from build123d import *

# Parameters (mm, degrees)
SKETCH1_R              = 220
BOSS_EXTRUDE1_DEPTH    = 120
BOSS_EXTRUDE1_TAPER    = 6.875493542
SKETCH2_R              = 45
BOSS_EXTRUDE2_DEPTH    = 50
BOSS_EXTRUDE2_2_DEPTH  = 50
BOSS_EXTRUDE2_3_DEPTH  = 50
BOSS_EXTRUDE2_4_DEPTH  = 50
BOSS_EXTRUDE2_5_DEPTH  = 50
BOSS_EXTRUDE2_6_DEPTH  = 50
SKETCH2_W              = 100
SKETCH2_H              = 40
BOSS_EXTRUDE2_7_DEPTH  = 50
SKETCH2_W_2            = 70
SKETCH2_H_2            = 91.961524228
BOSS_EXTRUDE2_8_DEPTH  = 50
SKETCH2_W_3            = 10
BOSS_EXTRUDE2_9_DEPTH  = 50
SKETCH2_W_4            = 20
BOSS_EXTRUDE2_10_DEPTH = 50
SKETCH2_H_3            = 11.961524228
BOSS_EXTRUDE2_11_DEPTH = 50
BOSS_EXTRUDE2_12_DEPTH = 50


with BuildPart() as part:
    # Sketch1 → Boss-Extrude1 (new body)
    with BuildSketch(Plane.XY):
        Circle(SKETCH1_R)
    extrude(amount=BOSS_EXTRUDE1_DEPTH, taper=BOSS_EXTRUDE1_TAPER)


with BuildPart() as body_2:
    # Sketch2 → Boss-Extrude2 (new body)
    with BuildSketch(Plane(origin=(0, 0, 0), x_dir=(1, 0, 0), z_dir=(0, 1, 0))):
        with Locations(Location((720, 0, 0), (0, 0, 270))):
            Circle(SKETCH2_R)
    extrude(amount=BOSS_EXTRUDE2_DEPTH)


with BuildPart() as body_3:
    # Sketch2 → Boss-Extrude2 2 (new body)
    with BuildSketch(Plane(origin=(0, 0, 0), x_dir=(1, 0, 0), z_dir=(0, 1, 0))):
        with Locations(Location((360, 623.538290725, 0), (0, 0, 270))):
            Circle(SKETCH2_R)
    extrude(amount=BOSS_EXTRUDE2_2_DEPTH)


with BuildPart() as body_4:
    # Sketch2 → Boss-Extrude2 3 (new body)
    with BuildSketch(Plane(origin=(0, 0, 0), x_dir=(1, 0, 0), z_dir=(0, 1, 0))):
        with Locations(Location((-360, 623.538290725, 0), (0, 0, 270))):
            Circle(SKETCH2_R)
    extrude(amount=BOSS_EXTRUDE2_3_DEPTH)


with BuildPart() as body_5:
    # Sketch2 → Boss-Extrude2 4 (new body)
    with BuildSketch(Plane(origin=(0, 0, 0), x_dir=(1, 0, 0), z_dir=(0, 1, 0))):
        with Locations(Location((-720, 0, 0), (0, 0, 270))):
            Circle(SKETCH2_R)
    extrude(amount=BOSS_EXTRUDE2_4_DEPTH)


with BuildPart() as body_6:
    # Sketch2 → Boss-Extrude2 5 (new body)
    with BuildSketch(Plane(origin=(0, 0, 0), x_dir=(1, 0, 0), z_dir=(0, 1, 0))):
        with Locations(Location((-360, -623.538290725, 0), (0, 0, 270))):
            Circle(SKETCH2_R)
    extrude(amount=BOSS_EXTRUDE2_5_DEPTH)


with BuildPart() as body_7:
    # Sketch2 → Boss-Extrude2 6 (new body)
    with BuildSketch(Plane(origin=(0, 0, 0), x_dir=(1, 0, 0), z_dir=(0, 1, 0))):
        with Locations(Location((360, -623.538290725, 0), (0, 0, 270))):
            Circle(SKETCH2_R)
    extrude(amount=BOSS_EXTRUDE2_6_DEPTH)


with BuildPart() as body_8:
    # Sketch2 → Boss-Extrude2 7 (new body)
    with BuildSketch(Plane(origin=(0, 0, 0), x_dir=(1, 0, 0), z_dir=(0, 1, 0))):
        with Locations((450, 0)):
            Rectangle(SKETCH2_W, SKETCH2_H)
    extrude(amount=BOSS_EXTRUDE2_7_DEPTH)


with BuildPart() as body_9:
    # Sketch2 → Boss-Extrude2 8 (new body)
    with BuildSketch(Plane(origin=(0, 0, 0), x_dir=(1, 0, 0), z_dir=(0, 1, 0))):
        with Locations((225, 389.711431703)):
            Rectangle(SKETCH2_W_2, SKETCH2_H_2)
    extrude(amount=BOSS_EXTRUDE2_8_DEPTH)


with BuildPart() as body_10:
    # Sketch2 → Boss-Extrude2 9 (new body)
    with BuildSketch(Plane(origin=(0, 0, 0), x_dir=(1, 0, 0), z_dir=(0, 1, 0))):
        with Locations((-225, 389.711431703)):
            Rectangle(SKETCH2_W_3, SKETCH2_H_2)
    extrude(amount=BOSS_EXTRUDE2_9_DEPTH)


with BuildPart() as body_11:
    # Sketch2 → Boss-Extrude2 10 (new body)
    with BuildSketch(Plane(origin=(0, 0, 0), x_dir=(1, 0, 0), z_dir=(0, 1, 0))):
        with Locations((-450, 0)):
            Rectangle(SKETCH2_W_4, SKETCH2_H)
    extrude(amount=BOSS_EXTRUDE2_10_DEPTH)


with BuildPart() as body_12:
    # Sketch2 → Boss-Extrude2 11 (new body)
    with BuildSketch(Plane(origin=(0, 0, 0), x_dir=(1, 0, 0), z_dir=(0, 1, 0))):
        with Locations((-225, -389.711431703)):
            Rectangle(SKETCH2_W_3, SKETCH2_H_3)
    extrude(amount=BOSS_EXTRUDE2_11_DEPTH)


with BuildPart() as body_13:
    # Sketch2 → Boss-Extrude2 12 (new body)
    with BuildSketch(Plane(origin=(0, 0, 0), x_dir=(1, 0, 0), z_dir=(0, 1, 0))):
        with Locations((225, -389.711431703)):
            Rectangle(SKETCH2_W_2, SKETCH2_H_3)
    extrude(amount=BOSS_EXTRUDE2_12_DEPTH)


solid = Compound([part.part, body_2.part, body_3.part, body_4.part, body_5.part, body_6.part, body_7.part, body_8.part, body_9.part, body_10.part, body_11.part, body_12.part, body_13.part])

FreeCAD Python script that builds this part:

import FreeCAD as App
import Part
import Sketcher


def add_polygon(sketch, points):
    """Adds a closed chain of lines whose ends are joined by coincident constraints."""
    first, n = sketch.GeometryCount, len(points)
    for a, b in zip(points, points[1:] + points[:1]):
        sketch.addGeometry(Part.LineSegment(App.Vector(*a, 0), App.Vector(*b, 0)), False)
    for i in range(n):
        sketch.addConstraint(Sketcher.Constraint("Coincident", first + i, 2, first + (i + 1) % n, 1))

doc = App.newDocument("Part")
body = doc.addObject("PartDesign::Body", "Body")

# Sketch on XY plane
sketch1 = body.newObject("Sketcher::SketchObject", "Sketch")
sketch1.AttachmentSupport = (doc.getObject("XY_Plane"), [""])
sketch1.MapMode = "FlatFace"
sketch1.addGeometry(Part.Circle(App.Vector(0, 0, 0), App.Vector(0, 0, 1), 220), False)
sketch1.addConstraint(Sketcher.Constraint("Coincident", 0, 3, -1, 1))
sketch1.addConstraint(Sketcher.Constraint("Diameter", 0, 440.0))
pad1 = body.newObject("PartDesign::Pad", "Pad")
pad1.Profile = sketch1
pad1.Length = 120
pad1.TaperAngle = -6.875494
body2 = doc.addObject("PartDesign::Body", "Body001")

# Sketch on XZ plane
sketch2 = body2.newObject("Sketcher::SketchObject", "Sketch001")
sketch2.AttachmentSupport = (doc.getObject("XZ_Plane001"), [""])
sketch2.MapMode = "FlatFace"
sketch2.addGeometry(Part.Circle(App.Vector(720, 0, 0), App.Vector(0, 0, 1), 45), False)
sketch2.addConstraint(Sketcher.Constraint("PointOnObject", 0, 3, -1))
sketch2.addConstraint(Sketcher.Constraint("Diameter", 0, 90.0))
sketch2.addConstraint(Sketcher.Constraint("DistanceX", -1, 1, 0, 3, 720.0))
pad2 = body2.newObject("PartDesign::Pad", "Pad001")
pad2.Profile = sketch2
pad2.Length = 50
pad2.Reversed = True
body3 = doc.addObject("PartDesign::Body", "Body002")

# Sketch on XZ plane
sketch3 = body3.newObject("Sketcher::SketchObject", "Sketch002")
sketch3.AttachmentSupport = (doc.getObject("XZ_Plane002"), [""])
sketch3.MapMode = "FlatFace"
sketch3.addGeometry(Part.Circle(App.Vector(360, -623.538291, 0), App.Vector(0, 0, 1), 45), False)
sketch3.addConstraint(Sketcher.Constraint("Diameter", 0, 90.0))
sketch3.addConstraint(Sketcher.Constraint("DistanceX", -1, 1, 0, 3, 360.0))
sketch3.addConstraint(Sketcher.Constraint("DistanceY", 0, 3, -1, 1, 623.538291))
pad3 = body3.newObject("PartDesign::Pad", "Pad002")
pad3.Profile = sketch3
pad3.Length = 50
pad3.Reversed = True
body4 = doc.addObject("PartDesign::Body", "Body003")

# Sketch on XZ plane
sketch4 = body4.newObject("Sketcher::SketchObject", "Sketch003")
sketch4.AttachmentSupport = (doc.getObject("XZ_Plane003"), [""])
sketch4.MapMode = "FlatFace"
sketch4.addGeometry(Part.Circle(App.Vector(-360, -623.538291, 0), App.Vector(0, 0, 1), 45), False)
sketch4.addConstraint(Sketcher.Constraint("Diameter", 0, 90.0))
sketch4.addConstraint(Sketcher.Constraint("DistanceX", 0, 3, -1, 1, 360.0))
sketch4.addConstraint(Sketcher.Constraint("DistanceY", 0, 3, -1, 1, 623.538291))
pad4 = body4.newObject("PartDesign::Pad", "Pad003")
pad4.Profile = sketch4
pad4.Length = 50
pad4.Reversed = True
body5 = doc.addObject("PartDesign::Body", "Body004")

# Sketch on XZ plane
sketch5 = body5.newObject("Sketcher::SketchObject", "Sketch004")
sketch5.AttachmentSupport = (doc.getObject("XZ_Plane004"), [""])
sketch5.MapMode = "FlatFace"
sketch5.addGeometry(Part.Circle(App.Vector(-720, 0, 0), App.Vector(0, 0, 1), 45), False)
sketch5.addConstraint(Sketcher.Constraint("PointOnObject", 0, 3, -1))
sketch5.addConstraint(Sketcher.Constraint("Diameter", 0, 90.0))
sketch5.addConstraint(Sketcher.Constraint("DistanceX", 0, 3, -1, 1, 720.0))
pad5 = body5.newObject("PartDesign::Pad", "Pad004")
pad5.Profile = sketch5
pad5.Length = 50
pad5.Reversed = True
body6 = doc.addObject("PartDesign::Body", "Body005")

# Sketch on XZ plane
sketch6 = body6.newObject("Sketcher::SketchObject", "Sketch005")
sketch6.AttachmentSupport = (doc.getObject("XZ_Plane005"), [""])
sketch6.MapMode = "FlatFace"
sketch6.addGeometry(Part.Circle(App.Vector(-360, 623.538291, 0), App.Vector(0, 0, 1), 45), False)
sketch6.addConstraint(Sketcher.Constraint("Diameter", 0, 90.0))
sketch6.addConstraint(Sketcher.Constraint("DistanceX", 0, 3, -1, 1, 360.0))
sketch6.addConstraint(Sketcher.Constraint("DistanceY", -1, 1, 0, 3, 623.538291))
pad6 = body6.newObject("PartDesign::Pad", "Pad005")
pad6.Profile = sketch6
pad6.Length = 50
pad6.Reversed = True
body7 = doc.addObject("PartDesign::Body", "Body006")

# Sketch on XZ plane
sketch7 = body7.newObject("Sketcher::SketchObject", "Sketch006")
sketch7.AttachmentSupport = (doc.getObject("XZ_Plane006"), [""])
sketch7.MapMode = "FlatFace"
sketch7.addGeometry(Part.Circle(App.Vector(360, 623.538291, 0), App.Vector(0, 0, 1), 45), False)
sketch7.addConstraint(Sketcher.Constraint("Diameter", 0, 90.0))
sketch7.addConstraint(Sketcher.Constraint("DistanceX", -1, 1, 0, 3, 360.0))
sketch7.addConstraint(Sketcher.Constraint("DistanceY", -1, 1, 0, 3, 623.538291))
pad7 = body7.newObject("PartDesign::Pad", "Pad006")
pad7.Profile = sketch7
pad7.Length = 50
pad7.Reversed = True
body8 = doc.addObject("PartDesign::Body", "Body007")

# Sketch on XZ plane
sketch8 = body8.newObject("Sketcher::SketchObject", "Sketch007")
sketch8.AttachmentSupport = (doc.getObject("XZ_Plane007"), [""])
sketch8.MapMode = "FlatFace"
add_polygon(sketch8, [(400, -20), (400, 20), (500, 20), (500, -20)])  # lines 0-3
sketch8.addConstraint(Sketcher.Constraint("Vertical", 0))
sketch8.addConstraint(Sketcher.Constraint("Horizontal", 1))
sketch8.addConstraint(Sketcher.Constraint("Vertical", 2))
sketch8.addConstraint(Sketcher.Constraint("Horizontal", 3))
sketch8.addConstraint(Sketcher.Constraint("DistanceX", 1, 1, 1, 2, 100.0))
sketch8.addConstraint(Sketcher.Constraint("DistanceY", 0, 1, 0, 2, 40.0))
sketch8.addConstraint(Sketcher.Constraint("DistanceX", -1, 1, 0, 2, 400.0))
sketch8.addConstraint(Sketcher.Constraint("DistanceY", -1, 1, 0, 2, 20.0))
pad8 = body8.newObject("PartDesign::Pad", "Pad007")
pad8.Profile = sketch8
pad8.Length = 50
pad8.Reversed = True
body9 = doc.addObject("PartDesign::Body", "Body008")

# Sketch on XZ plane
sketch9 = body9.newObject("Sketcher::SketchObject", "Sketch008")
sketch9.AttachmentSupport = (doc.getObject("XZ_Plane008"), [""])
sketch9.MapMode = "FlatFace"
add_polygon(sketch9, [(190, -435.692194), (190, -343.73067), (260, -343.73067), (260, -435.692194)])  # lines 0-3
sketch9.addConstraint(Sketcher.Constraint("Vertical", 0))
sketch9.addConstraint(Sketcher.Constraint("Horizontal", 1))
sketch9.addConstraint(Sketcher.Constraint("Vertical", 2))
sketch9.addConstraint(Sketcher.Constraint("Horizontal", 3))
sketch9.addConstraint(Sketcher.Constraint("DistanceX", 1, 1, 1, 2, 70.0))
sketch9.addConstraint(Sketcher.Constraint("DistanceX", -1, 1, 0, 2, 190.0))
sketch9.addConstraint(Sketcher.Constraint("DistanceY", 0, 1, 0, 2, 91.961524))
sketch9.addConstraint(Sketcher.Constraint("DistanceY", 0, 2, -1, 1, 343.73067))
pad9 = body9.newObject("PartDesign::Pad", "Pad008")
pad9.Profile = sketch9
pad9.Length = 50
pad9.Reversed = True
body10 = doc.addObject("PartDesign::Body", "Body009")

# Sketch on XZ plane
sketch10 = body10.newObject("Sketcher::SketchObject", "Sketch009")
sketch10.AttachmentSupport = (doc.getObject("XZ_Plane009"), [""])
sketch10.MapMode = "FlatFace"
add_polygon(sketch10, [(-230, -435.692194), (-230, -343.73067), (-220, -343.73067), (-220, -435.692194)])  # lines 0-3
sketch10.addConstraint(Sketcher.Constraint("Vertical", 0))
sketch10.addConstraint(Sketcher.Constraint("Horizontal", 1))
sketch10.addConstraint(Sketcher.Constraint("Vertical", 2))
sketch10.addConstraint(Sketcher.Constraint("Horizontal", 3))
sketch10.addConstraint(Sketcher.Constraint("DistanceX", 1, 1, 1, 2, 10.0))
sketch10.addConstraint(Sketcher.Constraint("DistanceX", 0, 2, -1, 1, 230.0))
sketch10.addConstraint(Sketcher.Constraint("DistanceY", 0, 1, 0, 2, 91.961524))
sketch10.addConstraint(Sketcher.Constraint("DistanceY", 0, 2, -1, 1, 343.73067))
pad10 = body10.newObject("PartDesign::Pad", "Pad009")
pad10.Profile = sketch10
pad10.Length = 50
pad10.Reversed = True
body11 = doc.addObject("PartDesign::Body", "Body010")

# Sketch on XZ plane
sketch11 = body11.newObject("Sketcher::SketchObject", "Sketch010")
sketch11.AttachmentSupport = (doc.getObject("XZ_Plane010"), [""])
sketch11.MapMode = "FlatFace"
add_polygon(sketch11, [(-460, -20), (-460, 20), (-440, 20), (-440, -20)])  # lines 0-3
sketch11.addConstraint(Sketcher.Constraint("Vertical", 0))
sketch11.addConstraint(Sketcher.Constraint("Horizontal", 1))
sketch11.addConstraint(Sketcher.Constraint("Vertical", 2))
sketch11.addConstraint(Sketcher.Constraint("Horizontal", 3))
sketch11.addConstraint(Sketcher.Constraint("DistanceX", 1, 1, 1, 2, 20.0))
sketch11.addConstraint(Sketcher.Constraint("DistanceY", 0, 1, 0, 2, 40.0))
sketch11.addConstraint(Sketcher.Constraint("DistanceX", 0, 2, -1, 1, 460.0))
sketch11.addConstraint(Sketcher.Constraint("DistanceY", -1, 1, 0, 2, 20.0))
pad11 = body11.newObject("PartDesign::Pad", "Pad010")
pad11.Profile = sketch11
pad11.Length = 50
pad11.Reversed = True
body12 = doc.addObject("PartDesign::Body", "Body011")

# Sketch on XZ plane
sketch12 = body12.newObject("Sketcher::SketchObject", "Sketch011")
sketch12.AttachmentSupport = (doc.getObject("XZ_Plane011"), [""])
sketch12.MapMode = "FlatFace"
add_polygon(sketch12, [(-230, 383.73067), (-230, 395.692194), (-220, 395.692194), (-220, 383.73067)])  # lines 0-3
sketch12.addConstraint(Sketcher.Constraint("Vertical", 0))
sketch12.addConstraint(Sketcher.Constraint("Horizontal", 1))
sketch12.addConstraint(Sketcher.Constraint("Vertical", 2))
sketch12.addConstraint(Sketcher.Constraint("Horizontal", 3))
sketch12.addConstraint(Sketcher.Constraint("DistanceX", 1, 1, 1, 2, 10.0))
sketch12.addConstraint(Sketcher.Constraint("DistanceX", 0, 2, -1, 1, 230.0))
sketch12.addConstraint(Sketcher.Constraint("DistanceY", 0, 1, 0, 2, 11.961524))
sketch12.addConstraint(Sketcher.Constraint("DistanceY", -1, 1, 2, 2, 383.73067))
pad12 = body12.newObject("PartDesign::Pad", "Pad011")
pad12.Profile = sketch12
pad12.Length = 50
pad12.Reversed = True
body13 = doc.addObject("PartDesign::Body", "Body012")

# Sketch on XZ plane
sketch13 = body13.newObject("Sketcher::SketchObject", "Sketch012")
sketch13.AttachmentSupport = (doc.getObject("XZ_Plane012"), [""])
sketch13.MapMode = "FlatFace"
add_polygon(sketch13, [(190, 383.73067), (190, 395.692194), (260, 395.692194), (260, 383.73067)])  # lines 0-3
sketch13.addConstraint(Sketcher.Constraint("Vertical", 0))
sketch13.addConstraint(Sketcher.Constraint("Horizontal", 1))
sketch13.addConstraint(Sketcher.Constraint("Vertical", 2))
sketch13.addConstraint(Sketcher.Constraint("Horizontal", 3))
sketch13.addConstraint(Sketcher.Constraint("DistanceX", 1, 1, 1, 2, 70.0))
sketch13.addConstraint(Sketcher.Constraint("DistanceX", -1, 1, 0, 2, 190.0))
sketch13.addConstraint(Sketcher.Constraint("DistanceY", 0, 1, 0, 2, 11.961524))
sketch13.addConstraint(Sketcher.Constraint("DistanceY", -1, 1, 2, 2, 383.73067))
pad13 = body13.newObject("PartDesign::Pad", "Pad012")
pad13.Profile = sketch13
pad13.Length = 50
pad13.Reversed = True

doc.recompute()
